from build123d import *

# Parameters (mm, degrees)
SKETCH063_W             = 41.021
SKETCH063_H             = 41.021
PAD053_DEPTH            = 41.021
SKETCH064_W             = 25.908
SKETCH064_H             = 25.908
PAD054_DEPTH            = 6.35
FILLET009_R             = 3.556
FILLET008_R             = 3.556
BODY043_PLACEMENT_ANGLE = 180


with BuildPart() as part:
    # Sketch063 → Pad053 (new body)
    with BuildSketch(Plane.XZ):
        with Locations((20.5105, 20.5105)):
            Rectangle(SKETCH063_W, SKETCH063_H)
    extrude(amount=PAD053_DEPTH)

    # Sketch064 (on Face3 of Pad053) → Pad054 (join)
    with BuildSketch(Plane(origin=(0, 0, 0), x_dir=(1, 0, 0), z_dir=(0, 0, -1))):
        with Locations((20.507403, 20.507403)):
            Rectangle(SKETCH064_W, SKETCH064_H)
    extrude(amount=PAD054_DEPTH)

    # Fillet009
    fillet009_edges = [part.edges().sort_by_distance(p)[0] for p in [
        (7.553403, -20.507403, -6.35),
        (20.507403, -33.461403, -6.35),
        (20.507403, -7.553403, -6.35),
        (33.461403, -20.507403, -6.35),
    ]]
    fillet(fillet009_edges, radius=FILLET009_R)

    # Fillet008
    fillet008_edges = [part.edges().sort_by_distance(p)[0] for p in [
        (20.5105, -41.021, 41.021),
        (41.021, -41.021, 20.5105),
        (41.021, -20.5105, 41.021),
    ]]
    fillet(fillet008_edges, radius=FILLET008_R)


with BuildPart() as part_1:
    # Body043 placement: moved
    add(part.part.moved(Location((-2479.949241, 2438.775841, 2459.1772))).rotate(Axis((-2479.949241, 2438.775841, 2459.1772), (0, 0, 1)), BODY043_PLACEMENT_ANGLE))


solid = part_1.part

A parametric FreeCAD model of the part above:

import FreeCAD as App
import Part
import Sketcher
Q = App.Units.Quantity


def edges_at(feature, points):
    """Names of the edges that pass closest to the given points."""
    edges = feature.Shape.Edges
    near = lambda p: min(range(len(edges)), key=lambda i: edges[i].distToShape(Part.Vertex(*p))[0])
    return sorted({f"Edge{near(p) + 1}" for p in points})

doc = App.newDocument("Part")
body = doc.addObject("PartDesign::Body", "Body")

sketch1 = body.newObject("Sketcher::SketchObject", "Sketch")
sketch1.AttachmentSupport = (doc.getObject("XZ_Plane"), [""])
sketch1.MapMode = "FlatFace"
sketch1.addGeometry([
    Part.LineSegment(App.Vector(0, 41, 0), App.Vector(0, 0, 0)),
    Part.LineSegment(App.Vector(0, 0, 0), App.Vector(41, 0, 0)),
    Part.LineSegment(App.Vector(41, 0, 0), App.Vector(41, 41, 0)),
    Part.LineSegment(App.Vector(41, 41, 0), App.Vector(0, 41, 0)),
], False)
sketch1.addConstraint([
    Sketcher.Constraint("Coincident", 0, 2, 1, 1),
    Sketcher.Constraint("Coincident", 1, 2, 2, 1),
    Sketcher.Constraint("Coincident", 2, 2, 3, 1),
    Sketcher.Constraint("Coincident", 3, 2, 0, 1),
    Sketcher.Constraint("Vertical", 0),
    Sketcher.Constraint("Horizontal", 1),
    Sketcher.Constraint("Vertical", 2),
    Sketcher.Constraint("Horizontal", 3),
    Sketcher.Constraint("Coincident", 0, 2, -1, 1),
    Sketcher.Constraint("Equal", 3, 0),
    Sketcher.Constraint("DistanceX", 1, 1, 1, 2, Q("1.615 in")),
])
pad1 = body.newObject("PartDesign::Pad", "Pad")
pad1.Profile = sketch1
pad1.Length = Q("1.615 in")

sketch2 = body.newObject("Sketcher::SketchObject", "Sketch001")
sketch2.AttachmentSupport = (doc.getObject("XY_Plane"), [""])
sketch2.MapMode = "FlatFace"
sketch2.addGeometry([
    Part.LineSegment(App.Vector(8, -33, 0), App.Vector(8, -8, 0)),
    Part.LineSegment(App.Vector(8, -8, 0), App.Vector(33, -8, 0)),
    Part.LineSegment(App.Vector(33, -8, 0), App.Vector(33, -33, 0)),
    Part.LineSegment(App.Vector(33, -33, 0), App.Vector(8, -33, 0)),
], False)
sketch2.addConstraint([
    Sketcher.Constraint("Coincident", 0, 2, 1, 1),
    Sketcher.Constraint("Coincident", 1, 2, 2, 1),
    Sketcher.Constraint("Coincident", 2, 2, 3, 1),
    Sketcher.Constraint("Coincident", 3, 2, 0, 1),
    Sketcher.Constraint("Vertical", 0),
    Sketcher.Constraint("Horizontal", 1),
    Sketcher.Constraint("Vertical", 2),
    Sketcher.Constraint("Horizontal", 3),
    Sketcher.Constraint("Equal", 3, 0),
    Sketcher.Constraint("DistanceX", 1, 1, 1, 2, Q("1.02 in")),
    Sketcher.Constraint("DistanceX", -1, 1, 0, 2, 7.553403),
    Sketcher.Constraint("DistanceY", 0, 2, -1, 1, 7.553403),
])
pad2 = body.newObject("PartDesign::Pad", "Pad001")
pad2.Profile = sketch2
pad2.Length = Q("0.25 in")
pad2.Reversed = True
doc.recompute()

fillet = body.newObject("PartDesign::Fillet", "Fillet")
fillet.Base = (pad2, edges_at(pad2, [
    (7.553, -20.507, -6.35),
    (20.507, -33.461, -6.35),
    (20.507, -7.553, -6.35),
    (33.461, -20.507, -6.35),
]))
fillet.Radius = Q("0.14 in")
doc.recompute()

fillet2 = body.newObject("PartDesign::Fillet", "Fillet001")
fillet2.Base = (fillet, edges_at(fillet, [(20.511, -41.021, 41.021), (41.021, -41.021, 20.511), (41.021, -20.511, 41.021)]))
fillet2.Radius = Q("0.14 in")
body2 = doc.addObject("PartDesign::Body", "Body001")
doc.recompute()

body.Placement = App.Placement(App.Vector(-2479.949241, 2438.775841, 2459.1772), App.Rotation(App.Vector(0, 0, 1), 180))
boolean = body2.newObject("PartDesign::Boolean", "Boolean")
boolean.Type = "Fuse"
boolean.addObjects([body])

doc.recompute()
